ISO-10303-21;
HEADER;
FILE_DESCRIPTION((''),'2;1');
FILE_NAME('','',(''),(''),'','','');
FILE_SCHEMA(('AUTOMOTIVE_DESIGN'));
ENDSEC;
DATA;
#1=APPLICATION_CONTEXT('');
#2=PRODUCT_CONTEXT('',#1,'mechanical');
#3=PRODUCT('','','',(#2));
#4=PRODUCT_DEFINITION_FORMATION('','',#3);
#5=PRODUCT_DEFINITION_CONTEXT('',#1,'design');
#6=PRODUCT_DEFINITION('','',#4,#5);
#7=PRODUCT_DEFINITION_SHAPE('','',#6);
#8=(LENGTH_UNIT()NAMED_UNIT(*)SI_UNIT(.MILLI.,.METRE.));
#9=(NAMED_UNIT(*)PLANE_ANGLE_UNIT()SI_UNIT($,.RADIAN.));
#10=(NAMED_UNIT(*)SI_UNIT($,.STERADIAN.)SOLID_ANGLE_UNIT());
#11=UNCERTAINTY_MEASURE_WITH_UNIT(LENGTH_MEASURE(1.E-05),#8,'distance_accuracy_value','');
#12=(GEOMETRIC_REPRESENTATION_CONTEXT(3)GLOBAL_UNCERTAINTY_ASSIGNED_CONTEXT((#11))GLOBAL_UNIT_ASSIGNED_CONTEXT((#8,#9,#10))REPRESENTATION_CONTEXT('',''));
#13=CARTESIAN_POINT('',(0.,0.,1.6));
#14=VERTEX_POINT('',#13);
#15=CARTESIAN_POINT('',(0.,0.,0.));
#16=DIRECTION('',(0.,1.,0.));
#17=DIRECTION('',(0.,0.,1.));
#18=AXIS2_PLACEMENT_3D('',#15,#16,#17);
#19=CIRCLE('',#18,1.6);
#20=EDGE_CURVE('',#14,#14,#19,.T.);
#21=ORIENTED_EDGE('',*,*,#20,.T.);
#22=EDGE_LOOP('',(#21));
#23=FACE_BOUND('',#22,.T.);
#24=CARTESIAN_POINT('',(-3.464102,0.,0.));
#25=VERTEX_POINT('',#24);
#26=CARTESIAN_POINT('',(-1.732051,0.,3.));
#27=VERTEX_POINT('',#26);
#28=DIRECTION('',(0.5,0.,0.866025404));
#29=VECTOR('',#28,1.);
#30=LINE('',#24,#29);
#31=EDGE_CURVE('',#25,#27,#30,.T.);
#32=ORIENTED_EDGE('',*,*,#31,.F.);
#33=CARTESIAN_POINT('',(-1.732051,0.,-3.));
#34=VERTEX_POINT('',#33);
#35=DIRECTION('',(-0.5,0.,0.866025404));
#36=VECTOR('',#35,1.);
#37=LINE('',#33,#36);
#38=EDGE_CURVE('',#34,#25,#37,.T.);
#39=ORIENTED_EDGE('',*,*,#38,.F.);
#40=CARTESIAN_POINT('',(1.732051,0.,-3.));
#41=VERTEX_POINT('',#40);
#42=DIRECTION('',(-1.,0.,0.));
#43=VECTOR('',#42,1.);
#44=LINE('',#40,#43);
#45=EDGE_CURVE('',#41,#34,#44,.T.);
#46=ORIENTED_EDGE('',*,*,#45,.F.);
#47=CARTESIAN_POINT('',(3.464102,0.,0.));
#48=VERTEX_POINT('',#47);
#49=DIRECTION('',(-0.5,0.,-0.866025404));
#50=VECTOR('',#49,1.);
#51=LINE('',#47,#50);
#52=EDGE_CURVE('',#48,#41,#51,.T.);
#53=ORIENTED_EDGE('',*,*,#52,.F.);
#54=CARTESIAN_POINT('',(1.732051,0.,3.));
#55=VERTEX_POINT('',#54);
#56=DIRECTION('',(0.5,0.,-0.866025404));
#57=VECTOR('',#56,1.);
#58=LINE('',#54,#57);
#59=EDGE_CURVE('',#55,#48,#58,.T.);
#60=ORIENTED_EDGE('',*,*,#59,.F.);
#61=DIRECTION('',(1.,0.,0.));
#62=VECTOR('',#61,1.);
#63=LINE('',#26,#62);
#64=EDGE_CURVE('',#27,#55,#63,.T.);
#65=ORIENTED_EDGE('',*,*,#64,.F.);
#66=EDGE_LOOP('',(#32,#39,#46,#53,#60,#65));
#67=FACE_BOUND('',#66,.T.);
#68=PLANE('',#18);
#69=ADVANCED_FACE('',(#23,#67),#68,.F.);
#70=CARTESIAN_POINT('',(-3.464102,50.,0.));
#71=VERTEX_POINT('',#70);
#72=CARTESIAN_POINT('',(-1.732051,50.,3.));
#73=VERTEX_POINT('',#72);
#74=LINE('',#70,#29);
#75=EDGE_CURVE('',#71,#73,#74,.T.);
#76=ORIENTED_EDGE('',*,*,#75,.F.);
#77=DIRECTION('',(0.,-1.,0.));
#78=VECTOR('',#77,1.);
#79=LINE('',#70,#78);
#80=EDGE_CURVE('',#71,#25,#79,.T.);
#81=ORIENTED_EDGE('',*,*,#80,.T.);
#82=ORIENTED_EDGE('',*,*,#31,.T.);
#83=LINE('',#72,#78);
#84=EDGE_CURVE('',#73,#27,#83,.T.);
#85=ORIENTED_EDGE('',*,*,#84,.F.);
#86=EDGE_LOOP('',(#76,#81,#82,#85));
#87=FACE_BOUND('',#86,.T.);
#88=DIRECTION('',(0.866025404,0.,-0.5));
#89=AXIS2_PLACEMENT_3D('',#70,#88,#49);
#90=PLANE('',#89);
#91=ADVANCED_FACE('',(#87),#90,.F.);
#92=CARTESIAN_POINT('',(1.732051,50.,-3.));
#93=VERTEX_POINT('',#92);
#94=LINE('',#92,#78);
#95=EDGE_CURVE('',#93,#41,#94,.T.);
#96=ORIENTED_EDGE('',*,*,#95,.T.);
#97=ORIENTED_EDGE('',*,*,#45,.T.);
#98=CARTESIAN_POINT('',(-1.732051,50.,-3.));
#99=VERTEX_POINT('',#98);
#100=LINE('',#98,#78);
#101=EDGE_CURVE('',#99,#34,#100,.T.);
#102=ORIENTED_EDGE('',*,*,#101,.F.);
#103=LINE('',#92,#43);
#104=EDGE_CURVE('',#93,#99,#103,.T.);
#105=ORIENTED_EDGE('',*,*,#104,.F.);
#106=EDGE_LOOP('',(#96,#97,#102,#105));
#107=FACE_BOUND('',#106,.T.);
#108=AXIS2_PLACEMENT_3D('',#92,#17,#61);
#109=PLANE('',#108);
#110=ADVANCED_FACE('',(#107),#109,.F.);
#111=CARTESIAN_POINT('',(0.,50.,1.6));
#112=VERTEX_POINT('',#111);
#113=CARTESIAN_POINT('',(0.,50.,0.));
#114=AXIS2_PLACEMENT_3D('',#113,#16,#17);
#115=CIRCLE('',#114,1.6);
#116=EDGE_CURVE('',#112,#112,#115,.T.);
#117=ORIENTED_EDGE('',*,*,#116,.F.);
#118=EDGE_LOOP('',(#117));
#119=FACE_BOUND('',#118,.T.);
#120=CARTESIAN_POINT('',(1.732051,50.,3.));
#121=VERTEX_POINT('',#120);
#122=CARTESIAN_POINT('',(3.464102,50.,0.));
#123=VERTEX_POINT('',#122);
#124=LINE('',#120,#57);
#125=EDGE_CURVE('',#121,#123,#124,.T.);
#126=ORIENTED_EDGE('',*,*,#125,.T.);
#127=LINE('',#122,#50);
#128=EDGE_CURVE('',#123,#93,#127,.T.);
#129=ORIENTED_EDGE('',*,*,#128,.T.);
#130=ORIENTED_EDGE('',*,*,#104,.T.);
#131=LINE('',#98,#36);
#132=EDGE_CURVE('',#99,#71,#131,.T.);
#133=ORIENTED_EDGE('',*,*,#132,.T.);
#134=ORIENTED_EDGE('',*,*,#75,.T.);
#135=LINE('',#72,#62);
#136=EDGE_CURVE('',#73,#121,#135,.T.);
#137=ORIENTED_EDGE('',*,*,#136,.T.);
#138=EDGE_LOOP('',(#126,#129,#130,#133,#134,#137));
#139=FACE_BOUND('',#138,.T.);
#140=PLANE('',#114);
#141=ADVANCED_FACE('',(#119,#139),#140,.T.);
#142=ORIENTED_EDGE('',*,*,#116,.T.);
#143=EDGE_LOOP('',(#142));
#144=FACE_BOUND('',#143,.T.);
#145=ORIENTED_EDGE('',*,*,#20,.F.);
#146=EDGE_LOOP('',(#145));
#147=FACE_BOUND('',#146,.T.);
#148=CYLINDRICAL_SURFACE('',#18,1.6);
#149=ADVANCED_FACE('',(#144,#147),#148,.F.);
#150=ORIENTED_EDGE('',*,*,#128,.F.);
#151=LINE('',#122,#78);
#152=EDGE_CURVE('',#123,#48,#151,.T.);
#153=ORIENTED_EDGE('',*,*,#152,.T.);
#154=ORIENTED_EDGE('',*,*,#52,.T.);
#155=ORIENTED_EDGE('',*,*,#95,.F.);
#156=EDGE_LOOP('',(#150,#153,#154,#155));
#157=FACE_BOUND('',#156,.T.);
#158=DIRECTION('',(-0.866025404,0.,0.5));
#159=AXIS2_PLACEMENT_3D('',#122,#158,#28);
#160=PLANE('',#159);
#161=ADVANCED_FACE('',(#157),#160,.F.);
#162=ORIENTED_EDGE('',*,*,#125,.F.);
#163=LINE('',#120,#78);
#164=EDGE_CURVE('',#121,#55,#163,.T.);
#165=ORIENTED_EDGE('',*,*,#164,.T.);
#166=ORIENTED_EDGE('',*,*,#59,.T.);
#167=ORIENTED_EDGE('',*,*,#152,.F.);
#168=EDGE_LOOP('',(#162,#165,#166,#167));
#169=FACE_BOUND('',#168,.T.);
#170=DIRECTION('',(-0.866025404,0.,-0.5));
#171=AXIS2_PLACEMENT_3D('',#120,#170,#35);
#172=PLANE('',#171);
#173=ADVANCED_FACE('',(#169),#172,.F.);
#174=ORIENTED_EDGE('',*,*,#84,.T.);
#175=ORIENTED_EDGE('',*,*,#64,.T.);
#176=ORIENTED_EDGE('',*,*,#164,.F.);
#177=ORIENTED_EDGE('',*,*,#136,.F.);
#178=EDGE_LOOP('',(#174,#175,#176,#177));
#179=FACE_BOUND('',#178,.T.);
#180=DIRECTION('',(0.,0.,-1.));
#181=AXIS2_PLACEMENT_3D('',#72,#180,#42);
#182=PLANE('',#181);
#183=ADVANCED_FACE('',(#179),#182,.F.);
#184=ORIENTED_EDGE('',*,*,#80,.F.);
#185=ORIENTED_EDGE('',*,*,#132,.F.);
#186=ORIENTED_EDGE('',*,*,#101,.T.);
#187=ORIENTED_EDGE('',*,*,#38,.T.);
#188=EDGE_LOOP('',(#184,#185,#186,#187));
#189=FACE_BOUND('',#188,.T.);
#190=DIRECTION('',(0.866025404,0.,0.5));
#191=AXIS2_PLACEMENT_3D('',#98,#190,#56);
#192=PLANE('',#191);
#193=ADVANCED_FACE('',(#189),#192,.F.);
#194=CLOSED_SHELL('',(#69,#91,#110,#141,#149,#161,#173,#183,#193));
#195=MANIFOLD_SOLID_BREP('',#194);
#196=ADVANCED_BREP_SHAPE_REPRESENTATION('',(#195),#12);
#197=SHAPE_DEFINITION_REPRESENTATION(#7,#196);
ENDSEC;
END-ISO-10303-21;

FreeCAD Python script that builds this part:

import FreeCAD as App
import Part
import Sketcher

V = App.Vector
Q = App.Units.Quantity


def add_polygon(sketch, points):
    """Adds a closed chain of lines whose ends are joined by coincident constraints."""
    first, n = sketch.GeometryCount, len(points)
    for a, b in zip(points, points[1:] + points[:1]):
        sketch.addGeometry(Part.LineSegment(App.Vector(*a, 0), App.Vector(*b, 0)), False)
    for i in range(n):
        sketch.addConstraint(Sketcher.Constraint("Coincident", first + i, 2, first + (i + 1) % n, 1))

doc = App.newDocument("Part")
body = doc.addObject("PartDesign::Body", "Body")

sketch1 = doc.addObject("Sketcher::SketchObject", "Sketch")
body.addObject(sketch1)
sketch1.AttachmentSupport = (doc.XZ_Plane, [""])
sketch1.MapMode = "FlatFace"
add_polygon(sketch1, [(3.5, 0), (1.7, -3), (-1.7, -3), (-3.5, 0), (-1.7, 3), (1.7, 3)])
sketch1.addConstraint([
    Sketcher.Constraint("Horizontal", 1),
    Sketcher.Constraint("Horizontal", 4),
    Sketcher.Constraint("Symmetric", 0, 2, 3, 2, -1, 1),
    Sketcher.Constraint("Symmetric", 2, 2, 5, 2, -1, 1),
    Sketcher.Constraint("PointOnObject", 2, 2, -1),
    Sketcher.Constraint("Parallel", 2, 5),
    Sketcher.Constraint("Vertical", 1, 2, 3, 2),
    Sketcher.Constraint("Angle", 0, Q("-120 deg")),
    Sketcher.Constraint("DistanceY", 0, 2, -1, 1, Q("3 mm")),
    Sketcher.Constraint("DistanceX", 1, 2, 1, 1, Q("3.464102 mm")),
])
pad1 = doc.addObject("PartDesign::Pad", "Pad")
body.addObject(pad1)
pad1.Profile = sketch1
pad1.Length = 50
pad1.Reversed = True

sketch2 = doc.addObject("Sketcher::SketchObject", "Sketch001")
body.addObject(sketch2)
sketch2.AttachmentSupport = (doc.XZ_Plane, [""])
sketch2.MapMode = "FlatFace"
sketch2.AttachmentOffset = App.Placement(V(0, 0, -50), App.Rotation())
sketch2.addGeometry(Part.Circle(V(0, 0, 0), V(0, 0, 1), 1.6), False)
sketch2.addConstraint([
    Sketcher.Constraint("Coincident", 0, 3, -1, 1),
    Sketcher.Constraint("Diameter", 0, Q("3.2 mm")),
])
pocket1 = doc.addObject("PartDesign::Pocket", "Pocket")
body.addObject(pocket1)
pocket1.Profile = sketch2
pocket1.Type = "ThroughAll"
pocket1.Reversed = True

doc.recompute()
